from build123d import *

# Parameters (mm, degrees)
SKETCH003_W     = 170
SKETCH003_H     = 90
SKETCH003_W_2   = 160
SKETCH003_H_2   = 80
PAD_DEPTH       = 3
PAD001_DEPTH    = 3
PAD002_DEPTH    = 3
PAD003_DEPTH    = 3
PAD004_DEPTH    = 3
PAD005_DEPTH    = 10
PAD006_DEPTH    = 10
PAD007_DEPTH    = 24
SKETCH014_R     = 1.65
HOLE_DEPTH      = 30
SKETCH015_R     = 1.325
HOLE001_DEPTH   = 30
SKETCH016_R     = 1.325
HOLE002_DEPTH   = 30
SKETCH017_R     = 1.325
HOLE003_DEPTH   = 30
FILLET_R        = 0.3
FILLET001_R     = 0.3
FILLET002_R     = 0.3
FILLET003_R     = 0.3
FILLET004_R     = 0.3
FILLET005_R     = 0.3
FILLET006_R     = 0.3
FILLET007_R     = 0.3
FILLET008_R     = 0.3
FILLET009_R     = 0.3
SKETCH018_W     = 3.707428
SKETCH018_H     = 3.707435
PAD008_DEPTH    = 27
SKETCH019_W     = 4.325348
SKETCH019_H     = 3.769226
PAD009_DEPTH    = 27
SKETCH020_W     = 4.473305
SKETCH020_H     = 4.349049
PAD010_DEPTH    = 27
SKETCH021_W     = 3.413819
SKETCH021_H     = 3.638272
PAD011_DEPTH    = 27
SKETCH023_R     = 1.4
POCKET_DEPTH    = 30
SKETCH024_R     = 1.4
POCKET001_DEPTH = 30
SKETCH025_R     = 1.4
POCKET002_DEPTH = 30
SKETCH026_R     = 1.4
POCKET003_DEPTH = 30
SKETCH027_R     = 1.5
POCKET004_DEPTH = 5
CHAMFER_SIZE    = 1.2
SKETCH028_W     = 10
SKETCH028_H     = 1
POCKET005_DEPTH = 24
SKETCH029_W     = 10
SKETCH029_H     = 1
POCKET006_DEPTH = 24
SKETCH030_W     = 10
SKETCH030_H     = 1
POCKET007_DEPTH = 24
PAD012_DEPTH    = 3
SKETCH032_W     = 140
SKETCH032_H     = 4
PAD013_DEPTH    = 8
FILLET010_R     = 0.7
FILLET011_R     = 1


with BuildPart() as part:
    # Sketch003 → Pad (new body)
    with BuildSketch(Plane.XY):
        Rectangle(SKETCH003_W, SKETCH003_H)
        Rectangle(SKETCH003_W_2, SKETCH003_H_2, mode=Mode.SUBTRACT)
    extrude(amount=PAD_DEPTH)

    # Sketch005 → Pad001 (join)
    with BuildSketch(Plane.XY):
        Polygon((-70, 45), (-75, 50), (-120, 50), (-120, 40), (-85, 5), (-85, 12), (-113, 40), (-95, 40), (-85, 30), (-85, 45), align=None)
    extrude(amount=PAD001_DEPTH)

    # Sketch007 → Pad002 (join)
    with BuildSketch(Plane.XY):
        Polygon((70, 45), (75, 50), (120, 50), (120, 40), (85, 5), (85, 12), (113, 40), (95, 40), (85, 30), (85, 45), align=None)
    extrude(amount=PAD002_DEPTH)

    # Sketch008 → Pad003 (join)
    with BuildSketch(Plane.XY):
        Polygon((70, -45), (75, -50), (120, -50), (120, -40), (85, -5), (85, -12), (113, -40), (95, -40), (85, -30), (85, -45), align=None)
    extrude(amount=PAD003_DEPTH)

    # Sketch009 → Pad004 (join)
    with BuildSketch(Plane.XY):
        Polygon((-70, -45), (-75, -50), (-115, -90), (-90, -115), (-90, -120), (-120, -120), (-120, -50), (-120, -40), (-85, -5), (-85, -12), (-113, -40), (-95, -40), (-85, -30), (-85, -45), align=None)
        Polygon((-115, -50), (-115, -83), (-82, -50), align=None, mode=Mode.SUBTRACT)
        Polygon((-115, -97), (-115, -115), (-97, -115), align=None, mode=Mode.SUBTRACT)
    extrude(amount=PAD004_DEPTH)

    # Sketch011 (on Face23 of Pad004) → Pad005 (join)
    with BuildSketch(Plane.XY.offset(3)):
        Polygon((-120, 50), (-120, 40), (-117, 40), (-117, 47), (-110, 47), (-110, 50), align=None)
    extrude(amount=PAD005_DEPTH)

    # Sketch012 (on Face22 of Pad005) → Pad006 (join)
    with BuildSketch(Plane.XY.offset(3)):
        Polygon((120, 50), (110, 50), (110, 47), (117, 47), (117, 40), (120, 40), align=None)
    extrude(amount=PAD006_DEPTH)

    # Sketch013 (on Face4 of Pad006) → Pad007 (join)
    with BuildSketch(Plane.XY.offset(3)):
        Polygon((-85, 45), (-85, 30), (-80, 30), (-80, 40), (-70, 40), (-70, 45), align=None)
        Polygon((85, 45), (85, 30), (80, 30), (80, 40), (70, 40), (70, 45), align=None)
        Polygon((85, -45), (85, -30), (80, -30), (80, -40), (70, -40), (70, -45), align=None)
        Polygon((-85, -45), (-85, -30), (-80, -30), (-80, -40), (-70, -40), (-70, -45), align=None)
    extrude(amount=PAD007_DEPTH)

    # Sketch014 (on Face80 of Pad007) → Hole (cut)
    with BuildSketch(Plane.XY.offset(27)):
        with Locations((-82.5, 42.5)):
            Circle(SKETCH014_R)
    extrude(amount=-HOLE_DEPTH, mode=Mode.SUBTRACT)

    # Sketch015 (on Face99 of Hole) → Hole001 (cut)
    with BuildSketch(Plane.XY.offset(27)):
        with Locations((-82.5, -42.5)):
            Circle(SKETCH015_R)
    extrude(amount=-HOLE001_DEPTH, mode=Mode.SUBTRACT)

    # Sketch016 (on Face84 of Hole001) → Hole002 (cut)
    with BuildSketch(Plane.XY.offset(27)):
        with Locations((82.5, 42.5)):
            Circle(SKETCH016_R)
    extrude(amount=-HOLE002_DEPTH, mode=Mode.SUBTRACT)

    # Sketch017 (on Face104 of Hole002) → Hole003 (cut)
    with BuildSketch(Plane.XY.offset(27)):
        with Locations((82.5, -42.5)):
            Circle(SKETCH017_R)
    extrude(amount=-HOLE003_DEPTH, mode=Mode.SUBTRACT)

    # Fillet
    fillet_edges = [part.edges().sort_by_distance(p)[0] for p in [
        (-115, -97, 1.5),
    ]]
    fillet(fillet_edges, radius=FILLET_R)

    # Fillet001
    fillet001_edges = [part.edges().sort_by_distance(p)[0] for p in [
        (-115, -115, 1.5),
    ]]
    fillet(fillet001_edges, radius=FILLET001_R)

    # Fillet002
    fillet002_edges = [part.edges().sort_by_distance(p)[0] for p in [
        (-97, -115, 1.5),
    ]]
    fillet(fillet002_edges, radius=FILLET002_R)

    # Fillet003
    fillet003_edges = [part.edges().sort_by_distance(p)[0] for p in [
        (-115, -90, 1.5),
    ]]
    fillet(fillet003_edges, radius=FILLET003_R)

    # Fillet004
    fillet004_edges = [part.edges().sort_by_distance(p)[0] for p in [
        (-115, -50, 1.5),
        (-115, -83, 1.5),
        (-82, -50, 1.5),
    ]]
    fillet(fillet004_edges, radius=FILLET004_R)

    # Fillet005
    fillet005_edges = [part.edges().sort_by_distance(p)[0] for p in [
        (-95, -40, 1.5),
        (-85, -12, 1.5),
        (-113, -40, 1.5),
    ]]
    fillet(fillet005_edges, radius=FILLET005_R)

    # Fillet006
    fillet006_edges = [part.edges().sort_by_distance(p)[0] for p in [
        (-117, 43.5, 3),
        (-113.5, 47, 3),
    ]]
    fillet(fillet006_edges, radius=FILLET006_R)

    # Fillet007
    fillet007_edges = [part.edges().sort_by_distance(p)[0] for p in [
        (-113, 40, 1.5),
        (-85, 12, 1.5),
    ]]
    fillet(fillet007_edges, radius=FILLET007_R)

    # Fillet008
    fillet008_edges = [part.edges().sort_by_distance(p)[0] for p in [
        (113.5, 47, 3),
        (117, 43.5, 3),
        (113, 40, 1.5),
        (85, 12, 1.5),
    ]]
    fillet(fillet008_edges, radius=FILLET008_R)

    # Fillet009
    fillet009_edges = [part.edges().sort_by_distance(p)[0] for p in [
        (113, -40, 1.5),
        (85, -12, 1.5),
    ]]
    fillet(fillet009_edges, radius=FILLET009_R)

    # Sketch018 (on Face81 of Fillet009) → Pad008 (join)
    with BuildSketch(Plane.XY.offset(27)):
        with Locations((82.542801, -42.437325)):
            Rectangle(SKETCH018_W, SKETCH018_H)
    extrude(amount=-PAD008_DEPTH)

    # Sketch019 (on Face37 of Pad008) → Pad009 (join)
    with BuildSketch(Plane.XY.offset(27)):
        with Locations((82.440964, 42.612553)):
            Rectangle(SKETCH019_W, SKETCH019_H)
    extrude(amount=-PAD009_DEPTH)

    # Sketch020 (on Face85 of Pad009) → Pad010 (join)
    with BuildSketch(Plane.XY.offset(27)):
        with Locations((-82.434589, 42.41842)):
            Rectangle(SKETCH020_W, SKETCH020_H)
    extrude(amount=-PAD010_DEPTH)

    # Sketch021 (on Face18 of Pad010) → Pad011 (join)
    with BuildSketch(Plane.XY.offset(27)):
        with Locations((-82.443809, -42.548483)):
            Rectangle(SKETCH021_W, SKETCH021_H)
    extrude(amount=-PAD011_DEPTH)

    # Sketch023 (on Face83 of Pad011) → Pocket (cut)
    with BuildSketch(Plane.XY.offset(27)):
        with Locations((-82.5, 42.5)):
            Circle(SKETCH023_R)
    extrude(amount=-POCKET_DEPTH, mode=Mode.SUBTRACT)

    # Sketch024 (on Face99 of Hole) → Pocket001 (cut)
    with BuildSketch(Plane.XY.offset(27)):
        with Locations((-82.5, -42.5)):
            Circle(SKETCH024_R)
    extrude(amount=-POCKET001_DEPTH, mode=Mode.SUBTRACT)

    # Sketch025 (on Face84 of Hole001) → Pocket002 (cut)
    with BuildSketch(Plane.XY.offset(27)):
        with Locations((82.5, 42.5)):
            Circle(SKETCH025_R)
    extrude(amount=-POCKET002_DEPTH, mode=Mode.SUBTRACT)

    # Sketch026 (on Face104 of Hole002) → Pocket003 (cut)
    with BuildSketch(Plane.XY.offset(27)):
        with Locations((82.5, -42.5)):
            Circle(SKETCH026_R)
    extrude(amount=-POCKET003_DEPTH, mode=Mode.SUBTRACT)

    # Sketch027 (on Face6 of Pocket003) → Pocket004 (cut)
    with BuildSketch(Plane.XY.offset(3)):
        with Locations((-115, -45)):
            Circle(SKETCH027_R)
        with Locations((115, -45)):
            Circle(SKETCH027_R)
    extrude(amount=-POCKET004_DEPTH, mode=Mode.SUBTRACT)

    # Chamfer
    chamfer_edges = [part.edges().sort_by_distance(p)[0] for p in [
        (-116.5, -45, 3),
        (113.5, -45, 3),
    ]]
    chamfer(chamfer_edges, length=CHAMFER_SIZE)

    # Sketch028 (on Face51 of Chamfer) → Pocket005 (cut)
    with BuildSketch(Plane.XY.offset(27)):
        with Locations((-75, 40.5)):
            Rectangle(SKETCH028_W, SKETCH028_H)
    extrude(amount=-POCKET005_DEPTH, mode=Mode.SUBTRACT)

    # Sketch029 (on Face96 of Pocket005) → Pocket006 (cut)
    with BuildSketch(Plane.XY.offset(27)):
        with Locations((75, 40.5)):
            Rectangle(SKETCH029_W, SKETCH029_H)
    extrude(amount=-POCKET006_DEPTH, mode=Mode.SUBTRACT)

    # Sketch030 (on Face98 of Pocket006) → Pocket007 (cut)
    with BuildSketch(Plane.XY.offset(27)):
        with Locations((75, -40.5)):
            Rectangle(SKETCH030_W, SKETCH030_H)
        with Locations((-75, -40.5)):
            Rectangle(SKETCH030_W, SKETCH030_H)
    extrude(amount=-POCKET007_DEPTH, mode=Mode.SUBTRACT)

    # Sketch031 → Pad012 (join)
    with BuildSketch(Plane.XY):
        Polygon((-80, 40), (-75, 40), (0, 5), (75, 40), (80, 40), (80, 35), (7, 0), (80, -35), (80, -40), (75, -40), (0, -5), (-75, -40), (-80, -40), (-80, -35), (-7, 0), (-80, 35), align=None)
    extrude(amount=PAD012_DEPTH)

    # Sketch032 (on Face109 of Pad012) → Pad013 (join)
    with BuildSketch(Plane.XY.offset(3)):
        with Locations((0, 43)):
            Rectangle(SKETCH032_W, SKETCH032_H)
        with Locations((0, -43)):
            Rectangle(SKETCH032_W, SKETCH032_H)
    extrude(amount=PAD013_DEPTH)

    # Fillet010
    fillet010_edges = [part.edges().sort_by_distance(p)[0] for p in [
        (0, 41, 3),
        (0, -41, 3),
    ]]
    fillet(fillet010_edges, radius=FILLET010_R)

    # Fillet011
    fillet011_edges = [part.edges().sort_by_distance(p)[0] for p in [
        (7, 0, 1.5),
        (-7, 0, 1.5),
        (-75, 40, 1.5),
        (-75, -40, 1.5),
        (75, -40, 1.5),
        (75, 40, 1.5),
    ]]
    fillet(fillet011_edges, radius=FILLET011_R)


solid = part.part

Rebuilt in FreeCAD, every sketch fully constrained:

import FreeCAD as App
import Part
import Sketcher
from FreeCAD import Vector
Q = App.Units.Quantity


def edges_at(feature, points):
    """Names of the edges that pass closest to the given points."""
    edges = feature.Shape.Edges
    near = lambda p: min(range(len(edges)), key=lambda i: edges[i].distToShape(Part.Vertex(*p))[0])
    return sorted({f"Edge{near(p) + 1}" for p in points})


def add_polygon(sketch, points):
    """Adds a closed chain of lines whose ends are joined by coincident constraints."""
    first, n = sketch.GeometryCount, len(points)
    for a, b in zip(points, points[1:] + points[:1]):
        sketch.addGeometry(Part.LineSegment(App.Vector(*a, 0), App.Vector(*b, 0)), False)
    for i in range(n):
        sketch.addConstraint(Sketcher.Constraint("Coincident", first + i, 2, first + (i + 1) % n, 1))

doc = App.newDocument("Part")
body = doc.addObject("PartDesign::Body", "Body")

sketch1 = doc.addObject("Sketcher::SketchObject", "Sketch")
body.addObject(sketch1)
sketch1.AttachmentSupport = (doc.XY_Plane, [""])
sketch1.MapMode = "FlatFace"
add_polygon(sketch1, [(-85, 45), (-85, -45), (85, -45), (85, 45)])
add_polygon(sketch1, [(80, -40), (-80, -40), (-80, 40), (80, 40)])
sketch1.addConstraint(Sketcher.Constraint("Vertical", 0))
sketch1.addConstraint(Sketcher.Constraint("Horizontal", 1))
sketch1.addConstraint(Sketcher.Constraint("Vertical", 2))
sketch1.addConstraint(Sketcher.Constraint("Horizontal", 3))
sketch1.addConstraint(Sketcher.Constraint("Horizontal", 4))
sketch1.addConstraint(Sketcher.Constraint("Vertical", 5))
sketch1.addConstraint(Sketcher.Constraint("Horizontal", 6))
sketch1.addConstraint(Sketcher.Constraint("Vertical", 7))
sketch1.addConstraint(Sketcher.Constraint("Symmetric", 0, 2, 2, 2, -1, 1))
sketch1.addConstraint(Sketcher.Constraint("Symmetric", 4, 2, 6, 2, -1, 1))
sketch1.addConstraint(Sketcher.Constraint("DistanceX", 1, 1, 1, 2, Q("170 mm")))
sketch1.addConstraint(Sketcher.Constraint("DistanceX", 4, 2, 4, 1, Q("160 mm")))
sketch1.addConstraint(Sketcher.Constraint("DistanceY", 0, 2, 0, 1, Q("90 mm")))
sketch1.addConstraint(Sketcher.Constraint("DistanceY", 5, 1, 5, 2, Q("80 mm")))
pad1 = doc.addObject("PartDesign::Pad", "Pad")
body.addObject(pad1)
pad1.Profile = sketch1
pad1.Length = 3

sketch2 = doc.addObject("Sketcher::SketchObject", "Sketch001")
body.addObject(sketch2)
sketch2.AttachmentSupport = (doc.XY_Plane, [""])
sketch2.MapMode = "FlatFace"
add_polygon(sketch2, [(-70, 45), (-75, 50), (-120, 50), (-120, 40), (-85, 5), (-85, 12), (-113, 40), (-95, 40), (-85, 30), (-85, 45)])
sketch2.addConstraint(Sketcher.Constraint("Horizontal", 1))
sketch2.addConstraint(Sketcher.Constraint("Vertical", 2))
sketch2.addConstraint(Sketcher.Constraint("Vertical", 4))
sketch2.addConstraint(Sketcher.Constraint("Horizontal", 6))
sketch2.addConstraint(Sketcher.Constraint("Vertical", 8))
sketch2.addConstraint(Sketcher.Constraint("Horizontal", 9))
sketch2.addConstraint(Sketcher.Constraint("Parallel", 0, 3))
sketch2.addConstraint(Sketcher.Constraint("Parallel", 3, 5))
sketch2.addConstraint(Sketcher.Constraint("Parallel", 5, 7))
sketch2.addConstraint(Sketcher.Constraint("Horizontal", 2, 2, 5, 2))
sketch2.addConstraint(Sketcher.Constraint("Vertical", 4, 2, 7, 2))
sketch2.addConstraint(Sketcher.Constraint("Equal", 9, 8))
sketch2.addConstraint(Sketcher.Constraint("DistanceX", 1, 2, 1, 1, Q("45 mm")))
sketch2.addConstraint(Sketcher.Constraint("DistanceX", 6, 1, 6, 2, Q("18 mm")))
sketch2.addConstraint(Sketcher.Constraint("DistanceX", 9, 1, 9, 2, Q("15 mm")))
sketch2.addConstraint(Sketcher.Constraint("DistanceY", 2, 2, 2, 1, Q("10 mm")))
sketch2.addConstraint(Sketcher.Constraint("DistanceY", 4, 1, 4, 2, Q("7 mm")))
sketch2.addConstraint(Sketcher.Constraint("DistanceX", 0, 2, -1, 1, Q("75 mm")))
sketch2.addConstraint(Sketcher.Constraint("DistanceY", -1, 1, 0, 2, Q("50 mm")))
sketch2.addConstraint(Sketcher.Constraint("DistanceX", 3, 2, -1, 1, Q("85 mm")))
pad2 = doc.addObject("PartDesign::Pad", "Pad001")
body.addObject(pad2)
pad2.Profile = sketch2
pad2.Length = 3

sketch3 = doc.addObject("Sketcher::SketchObject", "Sketch002")
body.addObject(sketch3)
sketch3.AttachmentSupport = (doc.XY_Plane, [""])
sketch3.MapMode = "FlatFace"
add_polygon(sketch3, [(75, 50), (70, 45), (85, 45), (85, 30), (95, 40), (113, 40), (85, 12), (85, 5), (120, 40), (120, 50)])
sketch3.addConstraint(Sketcher.Constraint("Horizontal", 1))
sketch3.addConstraint(Sketcher.Constraint("Vertical", 2))
sketch3.addConstraint(Sketcher.Constraint("Horizontal", 4))
sketch3.addConstraint(Sketcher.Constraint("Vertical", 6))
sketch3.addConstraint(Sketcher.Constraint("Vertical", 8))
sketch3.addConstraint(Sketcher.Constraint("Horizontal", 9))
sketch3.addConstraint(Sketcher.Constraint("Parallel", 0, 3))
sketch3.addConstraint(Sketcher.Constraint("Parallel", 3, 5))
sketch3.addConstraint(Sketcher.Constraint("Parallel", 5, 7))
sketch3.addConstraint(Sketcher.Constraint("Horizontal", 4, 2, 7, 2))
sketch3.addConstraint(Sketcher.Constraint("Vertical", 2, 2, 5, 2))
sketch3.addConstraint(Sketcher.Constraint("Equal", 1, 2))
sketch3.addConstraint(Sketcher.Constraint("DistanceX", 1, 1, 1, 2, Q("15 mm")))
sketch3.addConstraint(Sketcher.Constraint("DistanceX", 4, 1, 4, 2, Q("18 mm")))
sketch3.addConstraint(Sketcher.Constraint("DistanceX", 9, 2, 9, 1, Q("45 mm")))
sketch3.addConstraint(Sketcher.Constraint("DistanceY", 6, 2, 6, 1, Q("7 mm")))
sketch3.addConstraint(Sketcher.Constraint("DistanceY", 8, 1, 8, 2, Q("10 mm")))
sketch3.addConstraint(Sketcher.Constraint("DistanceX", -1, 1, 0, 2, Q("70 mm")))
sketch3.addConstraint(Sketcher.Constraint("DistanceY", -1, 1, 0, 2, Q("45 mm")))
sketch3.addConstraint(Sketcher.Constraint("DistanceX", -1, 1, 3, 2, Q("95 mm")))
pad3 = doc.addObject("PartDesign::Pad", "Pad002")
body.addObject(pad3)
pad3.Profile = sketch3
pad3.Length = 3

sketch4 = doc.addObject("Sketcher::SketchObject", "Sketch003")
body.addObject(sketch4)
sketch4.AttachmentSupport = (doc.XY_Plane, [""])
sketch4.MapMode = "FlatFace"
add_polygon(sketch4, [(70, -45), (75, -50), (120, -50), (120, -40), (85, -5), (85, -12), (113, -40), (95, -40), (85, -30), (85, -45)])
sketch4.addConstraint(Sketcher.Constraint("Horizontal", 1))
sketch4.addConstraint(Sketcher.Constraint("Vertical", 2))
sketch4.addConstraint(Sketcher.Constraint("Vertical", 4))
sketch4.addConstraint(Sketcher.Constraint("Horizontal", 6))
sketch4.addConstraint(Sketcher.Constraint("Vertical", 8))
sketch4.addConstraint(Sketcher.Constraint("Horizontal", 9))
sketch4.addConstraint(Sketcher.Constraint("Parallel", 0, 3))
sketch4.addConstraint(Sketcher.Constraint("Parallel", 3, 5))
sketch4.addConstraint(Sketcher.Constraint("Parallel", 5, 7))
sketch4.addConstraint(Sketcher.Constraint("Horizontal", 2, 2, 5, 2))
sketch4.addConstraint(Sketcher.Constraint("Vertical", 4, 2, 7, 2))
sketch4.addConstraint(Sketcher.Constraint("Equal", 9, 8))
sketch4.addConstraint(Sketcher.Constraint("DistanceX", 1, 1, 1, 2, Q("45 mm")))
sketch4.addConstraint(Sketcher.Constraint("DistanceX", 6, 2, 6, 1, Q("18 mm")))
sketch4.addConstraint(Sketcher.Constraint("DistanceX", 9, 2, 9, 1, Q("15 mm")))
sketch4.addConstraint(Sketcher.Constraint("DistanceY", 2, 1, 2, 2, Q("10 mm")))
sketch4.addConstraint(Sketcher.Constraint("DistanceY", 4, 2, 4, 1, Q("7 mm")))
sketch4.addConstraint(Sketcher.Constraint("DistanceX", -1, 1, 0, 2, Q("75 mm")))
sketch4.addConstraint(Sketcher.Constraint("DistanceY", 0, 2, -1, 1, Q("50 mm")))
sketch4.addConstraint(Sketcher.Constraint("DistanceX", -1, 1, 3, 2, Q("85 mm")))
pad4 = doc.addObject("PartDesign::Pad", "Pad003")
body.addObject(pad4)
pad4.Profile = sketch4
pad4.Length = 3

sketch5 = doc.addObject("Sketcher::SketchObject", "Sketch004")
body.addObject(sketch5)
sketch5.AttachmentSupport = (doc.XY_Plane, [""])
sketch5.MapMode = "FlatFace"
add_polygon(sketch5, [(-115, -90), (-70, -45), (-85, -45), (-85, -30), (-95, -40), (-113, -40), (-85, -12), (-85, -5), (-120, -40), (-120, -120), (-90, -120), (-90, -115)])
add_polygon(sketch5, [(-115, -97), (-97, -115), (-115, -115)])
add_polygon(sketch5, [(-115, -50), (-82, -50), (-115, -83)])
sketch5.addConstraint(Sketcher.Constraint("Horizontal", 1))
sketch5.addConstraint(Sketcher.Constraint("Vertical", 2))
sketch5.addConstraint(Sketcher.Constraint("Horizontal", 4))
sketch5.addConstraint(Sketcher.Constraint("Vertical", 6))
sketch5.addConstraint(Sketcher.Constraint("Vertical", 8))
sketch5.addConstraint(Sketcher.Constraint("Horizontal", 9))
sketch5.addConstraint(Sketcher.Constraint("Vertical", 10))
sketch5.addConstraint(Sketcher.Constraint("Horizontal", 13))
sketch5.addConstraint(Sketcher.Constraint("Vertical", 14))
sketch5.addConstraint(Sketcher.Constraint("Horizontal", 15))
sketch5.addConstraint(Sketcher.Constraint("Vertical", 17))
sketch5.addConstraint(Sketcher.Constraint("Parallel", 0, 3))
sketch5.addConstraint(Sketcher.Constraint("Parallel", 3, 5))
sketch5.addConstraint(Sketcher.Constraint("Parallel", 5, 7))
sketch5.addConstraint(Sketcher.Constraint("Perpendicular", 7, 11))
sketch5.addConstraint(Sketcher.Constraint("Parallel", 11, 12))
sketch5.addConstraint(Sketcher.Constraint("Perpendicular", 12, 16))
sketch5.addConstraint(Sketcher.Constraint("Horizontal", 4, 2, 7, 2))
sketch5.addConstraint(Sketcher.Constraint("Horizontal", 10, 2, 12, 2))
sketch5.addConstraint(Sketcher.Constraint("Vertical", 2, 2, 5, 2))
sketch5.addConstraint(Sketcher.Constraint("Vertical", 11, 2, 13, 2))
sketch5.addConstraint(Sketcher.Constraint("Vertical", 14, 2, 16, 2))
sketch5.addConstraint(Sketcher.Constraint("Equal", 4, 13))
sketch5.addConstraint(Sketcher.Constraint("Equal", 1, 2))
sketch5.addConstraint(Sketcher.Constraint("Equal", 13, 14))
sketch5.addConstraint(Sketcher.Constraint("DistanceX", 1, 2, 1, 1, Q("15 mm")))
sketch5.addConstraint(Sketcher.Constraint("DistanceX", 4, 2, 4, 1, Q("18 mm")))
sketch5.addConstraint(Sketcher.Constraint("DistanceX", 9, 1, 9, 2, Q("30 mm")))
sketch5.addConstraint(Sketcher.Constraint("DistanceX", 15, 1, 15, 2, Q("33 mm")))
sketch5.addConstraint(Sketcher.Constraint("DistanceY", 6, 1, 6, 2, Q("7 mm")))
sketch5.addConstraint(Sketcher.Constraint("DistanceY", 8, 2, 8, 1, Q("80 mm")))
sketch5.addConstraint(Sketcher.Constraint("DistanceY", 10, 1, 10, 2, Q("5 mm")))
sketch5.addConstraint(Sketcher.Constraint("DistanceX", 0, 2, -1, 1, Q("70 mm")))
sketch5.addConstraint(Sketcher.Constraint("DistanceY", 0, 2, -1, 1, Q("45 mm")))
sketch5.addConstraint(Sketcher.Constraint("DistanceX", 3, 2, -1, 1, Q("95 mm")))
sketch5.addConstraint(Sketcher.Constraint("DistanceY", 15, 2, -1, 1, Q("50 mm")))
pad5 = doc.addObject("PartDesign::Pad", "Pad004")
body.addObject(pad5)
pad5.Profile = sketch5
pad5.Length = 3

sketch6 = doc.addObject("Sketcher::SketchObject", "Sketch005")
body.addObject(sketch6)
sketch6.AttachmentSupport = (doc.XY_Plane, [""])
sketch6.MapMode = "FlatFace"
sketch6.AttachmentOffset = App.Placement(Vector(0, 0, 3), App.Rotation())
add_polygon(sketch6, [(-120, 50), (-120, 40), (-117, 40), (-117, 47), (-110, 47), (-110, 50)])
sketch6.addConstraint(Sketcher.Constraint("Vertical", 0))
sketch6.addConstraint(Sketcher.Constraint("Horizontal", 1))
sketch6.addConstraint(Sketcher.Constraint("Vertical", 2))
sketch6.addConstraint(Sketcher.Constraint("Horizontal", 3))
sketch6.addConstraint(Sketcher.Constraint("Vertical", 4))
sketch6.addConstraint(Sketcher.Constraint("Horizontal", 5))
sketch6.addConstraint(Sketcher.Constraint("Equal", 5, 0))
sketch6.addConstraint(Sketcher.Constraint("Equal", 3, 2))
sketch6.addConstraint(Sketcher.Constraint("DistanceX", 1, 1, 1, 2, Q("3 mm")))
sketch6.addConstraint(Sketcher.Constraint("DistanceX", 3, 1, 3, 2, Q("7 mm")))
sketch6.addConstraint(Sketcher.Constraint("DistanceX", 0, 2, -1, 1, Q("120 mm")))
sketch6.addConstraint(Sketcher.Constraint("DistanceY", -1, 1, 0, 2, Q("40 mm")))
pad6 = doc.addObject("PartDesign::Pad", "Pad005")
body.addObject(pad6)
pad6.Profile = sketch6
pad6.Length = 10

sketch7 = doc.addObject("Sketcher::SketchObject", "Sketch006")
body.addObject(sketch7)
sketch7.AttachmentSupport = (doc.XY_Plane, [""])
sketch7.MapMode = "FlatFace"
sketch7.AttachmentOffset = App.Placement(Vector(0, 0, 3), App.Rotation())
add_polygon(sketch7, [(120, 50), (110, 50), (110, 47), (117, 47), (117, 40), (120, 40)])
sketch7.addConstraint(Sketcher.Constraint("Horizontal", 0))
sketch7.addConstraint(Sketcher.Constraint("Vertical", 1))
sketch7.addConstraint(Sketcher.Constraint("Horizontal", 2))
sketch7.addConstraint(Sketcher.Constraint("Vertical", 3))
sketch7.addConstraint(Sketcher.Constraint("Horizontal", 4))
sketch7.addConstraint(Sketcher.Constraint("Vertical", 5))
sketch7.addConstraint(Sketcher.Constraint("Equal", 4, 1))
sketch7.addConstraint(Sketcher.Constraint("Equal", 2, 3))
sketch7.addConstraint(Sketcher.Constraint("DistanceX", 0, 2, 0, 1, Q("10 mm")))
sketch7.addConstraint(Sketcher.Constraint("DistanceX", 2, 1, 2, 2, Q("7 mm")))
sketch7.addConstraint(Sketcher.Constraint("DistanceX", -1, 1, 0, 2, Q("110 mm")))
sketch7.addConstraint(Sketcher.Constraint("DistanceY", -1, 1, 0, 2, Q("50 mm")))
pad7 = doc.addObject("PartDesign::Pad", "Pad006")
body.addObject(pad7)
pad7.Profile = sketch7
pad7.Length = 10

sketch8 = doc.addObject("Sketcher::SketchObject", "Sketch007")
body.addObject(sketch8)
sketch8.AttachmentSupport = (doc.XY_Plane, [""])
sketch8.MapMode = "FlatFace"
sketch8.AttachmentOffset = App.Placement(Vector(0, 0, 3), App.Rotation())
add_polygon(sketch8, [(-85, 45), (-85, 30), (-80, 30), (-80, 40), (-70, 40), (-70, 45)])
add_polygon(sketch8, [(85, 30), (85, 45), (70, 45), (70, 40), (80, 40), (80, 30)])
add_polygon(sketch8, [(85, -45), (85, -30), (80, -30), (80, -40), (70, -40), (70, -45)])
add_polygon(sketch8, [(-85, -30), (-85, -45), (-70, -45), (-70, -40), (-80, -40), (-80, -30)])
sketch8.addConstraint(Sketcher.Constraint("Vertical", 0))
sketch8.addConstraint(Sketcher.Constraint("Horizontal", 1))
sketch8.addConstraint(Sketcher.Constraint("Vertical", 2))
sketch8.addConstraint(Sketcher.Constraint("Horizontal", 3))
sketch8.addConstraint(Sketcher.Constraint("Vertical", 4))
sketch8.addConstraint(Sketcher.Constraint("Horizontal", 5))
sketch8.addConstraint(Sketcher.Constraint("Vertical", 6))
sketch8.addConstraint(Sketcher.Constraint("Horizontal", 7))
sketch8.addConstraint(Sketcher.Constraint("Vertical", 8))
sketch8.addConstraint(Sketcher.Constraint("Horizontal", 9))
sketch8.addConstraint(Sketcher.Constraint("Vertical", 10))
sketch8.addConstraint(Sketcher.Constraint("Horizontal", 11))
sketch8.addConstraint(Sketcher.Constraint("Vertical", 12))
sketch8.addConstraint(Sketcher.Constraint("Horizontal", 13))
sketch8.addConstraint(Sketcher.Constraint("Vertical", 14))
sketch8.addConstraint(Sketcher.Constraint("Horizontal", 15))
sketch8.addConstraint(Sketcher.Constraint("Vertical", 16))
sketch8.addConstraint(Sketcher.Constraint("Horizontal", 17))
sketch8.addConstraint(Sketcher.Constraint("Vertical", 18))
sketch8.addConstraint(Sketcher.Constraint("Horizontal", 19))
sketch8.addConstraint(Sketcher.Constraint("Vertical", 20))
sketch8.addConstraint(Sketcher.Constraint("Horizontal", 21))
sketch8.addConstraint(Sketcher.Constraint("Vertical", 22))
sketch8.addConstraint(Sketcher.Constraint("Horizontal", 23))
sketch8.addConstraint(Sketcher.Constraint("Symmetric", 0, 2, 12, 2, -1, 1))
sketch8.addConstraint(Sketcher.Constraint("Symmetric", 2, 2, 14, 2, -1, 1))
sketch8.addConstraint(Sketcher.Constraint("Symmetric", 4, 2, 16, 2, -1, 1))
sketch8.addConstraint(Sketcher.Constraint("Symmetric", 6, 2, 18, 2, -1, 1))
sketch8.addConstraint(Sketcher.Constraint("Symmetric", 8, 2, 20, 2, -1, 1))
sketch8.addConstraint(Sketcher.Constraint("Symmetric", 10, 2, 22, 2, -1, 1))
sketch8.addConstraint(Sketcher.Constraint("Symmetric", 5, 2, 6, 2, -2))
sketch8.addConstraint(Sketcher.Constraint("Symmetric", 3, 2, 8, 2, -2))
sketch8.addConstraint(Sketcher.Constraint("Symmetric", 1, 2, 10, 2, -2))
sketch8.addConstraint(Sketcher.Constraint("Equal", 19, 0))
sketch8.addConstraint(Sketcher.Constraint("Equal", 21, 2))
sketch8.addConstraint(Sketcher.Constraint("DistanceX", 1, 1, 1, 2, Q("5 mm")))
sketch8.addConstraint(Sketcher.Constraint("DistanceX", 3, 1, 3, 2, Q("10 mm")))
sketch8.addConstraint(Sketcher.Constraint("DistanceX", 0, 2, -1, 1, Q("85 mm")))
sketch8.addConstraint(Sketcher.Constraint("DistanceY", -1, 1, 0, 2, Q("30 mm")))
pad8 = doc.addObject("PartDesign::Pad", "Pad007")
body.addObject(pad8)
pad8.Profile = sketch8
pad8.Length = 24

sketch9 = doc.addObject("Sketcher::SketchObject", "Sketch008")
body.addObject(sketch9)
sketch9.AttachmentSupport = (doc.XY_Plane, [""])
sketch9.MapMode = "FlatFace"
sketch9.AttachmentOffset = App.Placement(Vector(0, 0, 27), App.Rotation())
sketch9.addGeometry(Part.Circle(Vector(-82.5, 42.5, 0), Vector(0, 0, 1), 1.6), False)
sketch9.addConstraint(Sketcher.Constraint("Diameter", 0, Q("3.3 mm")))
sketch9.addConstraint(Sketcher.Constraint("DistanceX", 0, 3, -1, 1, Q("82.5 mm")))
sketch9.addConstraint(Sketcher.Constraint("DistanceY", -1, 1, 0, 3, Q("42.5 mm")))
pocket1 = doc.addObject("PartDesign::Pocket", "Pocket")
body.addObject(pocket1)
pocket1.Profile = sketch9
pocket1.Length = 30

sketch10 = doc.addObject("Sketcher::SketchObject", "Sketch009")
body.addObject(sketch10)
sketch10.AttachmentSupport = (doc.XY_Plane, [""])
sketch10.MapMode = "FlatFace"
sketch10.AttachmentOffset = App.Placement(Vector(0, 0, 27), App.Rotation())
sketch10.addGeometry(Part.Circle(Vector(-82.5, -42.5, 0), Vector(0, 0, 1), 1.3), False)
sketch10.addConstraint(Sketcher.Constraint("Diameter", 0, Q("2.65 mm")))
sketch10.addConstraint(Sketcher.Constraint("DistanceX", 0, 3, -1, 1, Q("82.5 mm")))
sketch10.addConstraint(Sketcher.Constraint("DistanceY", 0, 3, -1, 1, Q("42.5 mm")))
pocket2 = doc.addObject("PartDesign::Pocket", "Pocket001")
body.addObject(pocket2)
pocket2.Profile = sketch10
pocket2.Length = 30

sketch11 = doc.addObject("Sketcher::SketchObject", "Sketch010")
body.addObject(sketch11)
sketch11.AttachmentSupport = (doc.XY_Plane, [""])
sketch11.MapMode = "FlatFace"
sketch11.AttachmentOffset = App.Placement(Vector(0, 0, 27), App.Rotation())
sketch11.addGeometry(Part.Circle(Vector(82.5, 42.5, 0), Vector(0, 0, 1), 1.3), False)
sketch11.addConstraint(Sketcher.Constraint("Diameter", 0, Q("2.65 mm")))
sketch11.addConstraint(Sketcher.Constraint("DistanceX", -1, 1, 0, 3, Q("82.5 mm")))
sketch11.addConstraint(Sketcher.Constraint("DistanceY", -1, 1, 0, 3, Q("42.5 mm")))
pocket3 = doc.addObject("PartDesign::Pocket", "Pocket002")
body.addObject(pocket3)
pocket3.Profile = sketch11
pocket3.Length = 30

sketch12 = doc.addObject("Sketcher::SketchObject", "Sketch011")
body.addObject(sketch12)
sketch12.AttachmentSupport = (doc.XY_Plane, [""])
sketch12.MapMode = "FlatFace"
sketch12.AttachmentOffset = App.Placement(Vector(0, 0, 27), App.Rotation())
sketch12.addGeometry(Part.Circle(Vector(82.5, -42.5, 0), Vector(0, 0, 1), 1.3), False)
sketch12.addConstraint(Sketcher.Constraint("Diameter", 0, Q("2.65 mm")))
sketch12.addConstraint(Sketcher.Constraint("DistanceX", -1, 1, 0, 3, Q("82.5 mm")))
sketch12.addConstraint(Sketcher.Constraint("DistanceY", 0, 3, -1, 1, Q("42.5 mm")))
pocket4 = doc.addObject("PartDesign::Pocket", "Pocket003")
body.addObject(pocket4)
pocket4.Profile = sketch12
pocket4.Length = 30
doc.recompute()

fillet = doc.addObject("PartDesign::Fillet", "Fillet")
body.addObject(fillet)
fillet.Base = (pocket4, edges_at(pocket4, [(-115, -97, 1.5)]))
fillet.Radius = 0.3
doc.recompute()

fillet2 = doc.addObject("PartDesign::Fillet", "Fillet001")
body.addObject(fillet2)
fillet2.Base = (fillet, edges_at(fillet, [(-115, -115, 1.5)]))
fillet2.Radius = 0.3
doc.recompute()

fillet3 = doc.addObject("PartDesign::Fillet", "Fillet002")
body.addObject(fillet3)
fillet3.Base = (fillet2, edges_at(fillet2, [(-97, -115, 1.5)]))
fillet3.Radius = 0.3
doc.recompute()

fillet4 = doc.addObject("PartDesign::Fillet", "Fillet003")
body.addObject(fillet4)
fillet4.Base = (fillet3, edges_at(fillet3, [(-115, -90, 1.5)]))
fillet4.Radius = 0.3
doc.recompute()

fillet5 = doc.addObject("PartDesign::Fillet", "Fillet004")
body.addObject(fillet5)
fillet5.Base = (fillet4, edges_at(fillet4, [(-115, -50, 1.5), (-115, -83, 1.5), (-82, -50, 1.5)]))
fillet5.Radius = 0.3
doc.recompute()

fillet6 = doc.addObject("PartDesign::Fillet", "Fillet005")
body.addObject(fillet6)
fillet6.Base = (fillet5, edges_at(fillet5, [(-95, -40, 1.5), (-85, -12, 1.5), (-113, -40, 1.5)]))
fillet6.Radius = 0.3
doc.recompute()

fillet7 = doc.addObject("PartDesign::Fillet", "Fillet006")
body.addObject(fillet7)
fillet7.Base = (fillet6, edges_at(fillet6, [(-117, 43.5, 3), (-113.5, 47, 3)]))
fillet7.Radius = 0.3
doc.recompute()

fillet8 = doc.addObject("PartDesign::Fillet", "Fillet007")
body.addObject(fillet8)
fillet8.Base = (fillet7, edges_at(fillet7, [(-113, 40, 1.5), (-85, 12, 1.5)]))
fillet8.Radius = 0.3
doc.recompute()

fillet9 = doc.addObject("PartDesign::Fillet", "Fillet008")
body.addObject(fillet9)
fillet9.Base = (fillet8, edges_at(fillet8, [
    (113.5, 47, 3),
    (117, 43.5, 3),
    (113, 40, 1.5),
    (85, 12, 1.5),
]))
fillet9.Radius = 0.3
doc.recompute()

fillet10 = doc.addObject("PartDesign::Fillet", "Fillet009")
body.addObject(fillet10)
fillet10.Base = (fillet9, edges_at(fillet9, [(113, -40, 1.5), (85, -12, 1.5)]))
fillet10.Radius = 0.3

sketch13 = doc.addObject("Sketcher::SketchObject", "Sketch012")
body.addObject(sketch13)
sketch13.AttachmentSupport = (doc.XY_Plane, [""])
sketch13.MapMode = "FlatFace"
sketch13.AttachmentOffset = App.Placement(Vector(0, 0, 27), App.Rotation())
add_polygon(sketch13, [(80.7, -40.6), (80.7, -44.3), (84.4, -44.3), (84.4, -40.6)])
sketch13.addConstraint(Sketcher.Constraint("Vertical", 0))
sketch13.addConstraint(Sketcher.Constraint("Horizontal", 1))
sketch13.addConstraint(Sketcher.Constraint("Vertical", 2))
sketch13.addConstraint(Sketcher.Constraint("Horizontal", 3))
sketch13.addConstraint(Sketcher.Constraint("DistanceX", 1, 1, 1, 2, Q("3.707428 mm")))
sketch13.addConstraint(Sketcher.Constraint("DistanceY", 0, 2, 0, 1, Q("3.707435 mm")))
sketch13.addConstraint(Sketcher.Constraint("DistanceX", -1, 1, 0, 2, Q("80.689087 mm")))
sketch13.addConstraint(Sketcher.Constraint("DistanceY", 0, 2, -1, 1, Q("44.291043 mm")))
pad9 = doc.addObject("PartDesign::Pad", "Pad008")
body.addObject(pad9)
pad9.Profile = sketch13
pad9.Length = 27
pad9.Reversed = True

sketch14 = doc.addObject("Sketcher::SketchObject", "Sketch013")
body.addObject(sketch14)
sketch14.AttachmentSupport = (doc.XY_Plane, [""])
sketch14.MapMode = "FlatFace"
sketch14.AttachmentOffset = App.Placement(Vector(0, 0, 27), App.Rotation())
add_polygon(sketch14, [(80.3, 44.5), (80.3, 40.7), (84.6, 40.7), (84.6, 44.5)])
sketch14.addConstraint(Sketcher.Constraint("Vertical", 0))
sketch14.addConstraint(Sketcher.Constraint("Horizontal", 1))
sketch14.addConstraint(Sketcher.Constraint("Vertical", 2))
sketch14.addConstraint(Sketcher.Constraint("Horizontal", 3))
sketch14.addConstraint(Sketcher.Constraint("DistanceX", 1, 1, 1, 2, Q("4.325348 mm")))
sketch14.addConstraint(Sketcher.Constraint("DistanceY", 0, 2, 0, 1, Q("3.769226 mm")))
sketch14.addConstraint(Sketcher.Constraint("DistanceX", -1, 1, 0, 2, Q("80.27829 mm")))
sketch14.addConstraint(Sketcher.Constraint("DistanceY", -1, 1, 0, 2, Q("40.72794 mm")))
pad10 = doc.addObject("PartDesign::Pad", "Pad009")
body.addObject(pad10)
pad10.Profile = sketch14
pad10.Length = 27
pad10.Reversed = True

sketch15 = doc.addObject("Sketcher::SketchObject", "Sketch014")
body.addObject(sketch15)
sketch15.AttachmentSupport = (doc.XY_Plane, [""])
sketch15.MapMode = "FlatFace"
sketch15.AttachmentOffset = App.Placement(Vector(0, 0, 27), App.Rotation())
add_polygon(sketch15, [(-84.7, 44.6), (-84.7, 40.2), (-80.2, 40.2), (-80.2, 44.6)])
sketch15.addConstraint(Sketcher.Constraint("Vertical", 0))
sketch15.addConstraint(Sketcher.Constraint("Horizontal", 1))
sketch15.addConstraint(Sketcher.Constraint("Vertical", 2))
sketch15.addConstraint(Sketcher.Constraint("Horizontal", 3))
sketch15.addConstraint(Sketcher.Constraint("DistanceY", 0, 2, 0, 1, Q("4.349049 mm")))
sketch15.addConstraint(Sketcher.Constraint("DistanceX", 1, 1, 1, 2, Q("4.473305 mm")))
sketch15.addConstraint(Sketcher.Constraint("DistanceX", 0, 2, -1, 1, Q("84.671241 mm")))
sketch15.addConstraint(Sketcher.Constraint("DistanceY", -1, 1, 0, 2, Q("40.243896 mm")))
pad11 = doc.addObject("PartDesign::Pad", "Pad010")
body.addObject(pad11)
pad11.Profile = sketch15
pad11.Length = 27
pad11.Reversed = True

sketch16 = doc.addObject("Sketcher::SketchObject", "Sketch015")
body.addObject(sketch16)
sketch16.AttachmentSupport = (doc.XY_Plane, [""])
sketch16.MapMode = "FlatFace"
sketch16.AttachmentOffset = App.Placement(Vector(0, 0, 27), App.Rotation())
add_polygon(sketch16, [(-84.2, -40.7), (-84.2, -44.4), (-80.7, -44.4), (-80.7, -40.7)])
sketch16.addConstraint(Sketcher.Constraint("Vertical", 0))
sketch16.addConstraint(Sketcher.Constraint("Horizontal", 1))
sketch16.addConstraint(Sketcher.Constraint("Vertical", 2))
sketch16.addConstraint(Sketcher.Constraint("Horizontal", 3))
sketch16.addConstraint(Sketcher.Constraint("DistanceX", 1, 1, 1, 2, Q("3.413819 mm")))
sketch16.addConstraint(Sketcher.Constraint("DistanceX", 1, 2, -1, 1, Q("80.7369 mm")))
sketch16.addConstraint(Sketcher.Constraint("DistanceY", 0, 2, 0, 1, Q("3.638272 mm")))
sketch16.addConstraint(Sketcher.Constraint("DistanceY", 0, 2, -1, 1, Q("44.367619 mm")))
pad12 = doc.addObject("PartDesign::Pad", "Pad011")
body.addObject(pad12)
pad12.Profile = sketch16
pad12.Length = 27
pad12.Reversed = True

sketch17 = doc.addObject("Sketcher::SketchObject", "Sketch016")
body.addObject(sketch17)
sketch17.AttachmentSupport = (doc.XY_Plane, [""])
sketch17.MapMode = "FlatFace"
sketch17.AttachmentOffset = App.Placement(Vector(0, 0, 27), App.Rotation())
sketch17.addGeometry(Part.Circle(Vector(-82.5, 42.5, 0), Vector(0, 0, 1), 1.4), False)
sketch17.addConstraint(Sketcher.Constraint("Diameter", 0, Q("2.8 mm")))
sketch17.addConstraint(Sketcher.Constraint("DistanceX", 0, 3, -1, 1, Q("82.5 mm")))
sketch17.addConstraint(Sketcher.Constraint("DistanceY", -1, 1, 0, 3, Q("42.5 mm")))
pocket5 = doc.addObject("PartDesign::Pocket", "Pocket004")
body.addObject(pocket5)
pocket5.Profile = sketch17
pocket5.Length = 30

sketch18 = doc.addObject("Sketcher::SketchObject", "Sketch017")
body.addObject(sketch18)
sketch18.AttachmentSupport = (doc.XY_Plane, [""])
sketch18.MapMode = "FlatFace"
sketch18.AttachmentOffset = App.Placement(Vector(0, 0, 27), App.Rotation())
sketch18.addGeometry(Part.Circle(Vector(-82.5, -42.5, 0), Vector(0, 0, 1), 1.4), False)
sketch18.addConstraint(Sketcher.Constraint("Diameter", 0, Q("2.8 mm")))
sketch18.addConstraint(Sketcher.Constraint("DistanceX", 0, 3, -1, 1, Q("82.5 mm")))
sketch18.addConstraint(Sketcher.Constraint("DistanceY", 0, 3, -1, 1, Q("42.5 mm")))
pocket6 = doc.addObject("PartDesign::Pocket", "Pocket005")
body.addObject(pocket6)
pocket6.Profile = sketch18
pocket6.Length = 30

sketch19 = doc.addObject("Sketcher::SketchObject", "Sketch018")
body.addObject(sketch19)
sketch19.AttachmentSupport = (doc.XY_Plane, [""])
sketch19.MapMode = "FlatFace"
sketch19.AttachmentOffset = App.Placement(Vector(0, 0, 27), App.Rotation())
sketch19.addGeometry(Part.Circle(Vector(82.5, 42.5, 0), Vector(0, 0, 1), 1.4), False)
sketch19.addConstraint(Sketcher.Constraint("Diameter", 0, Q("2.8 mm")))
sketch19.addConstraint(Sketcher.Constraint("DistanceX", -1, 1, 0, 3, Q("82.5 mm")))
sketch19.addConstraint(Sketcher.Constraint("DistanceY", -1, 1, 0, 3, Q("42.5 mm")))
pocket7 = doc.addObject("PartDesign::Pocket", "Pocket006")
body.addObject(pocket7)
pocket7.Profile = sketch19
pocket7.Length = 30

sketch20 = doc.addObject("Sketcher::SketchObject", "Sketch019")
body.addObject(sketch20)
sketch20.AttachmentSupport = (doc.XY_Plane, [""])
sketch20.MapMode = "FlatFace"
sketch20.AttachmentOffset = App.Placement(Vector(0, 0, 27), App.Rotation())
sketch20.addGeometry(Part.Circle(Vector(82.5, -42.5, 0), Vector(0, 0, 1), 1.4), False)
sketch20.addConstraint(Sketcher.Constraint("Diameter", 0, Q("2.8 mm")))
sketch20.addConstraint(Sketcher.Constraint("DistanceX", -1, 1, 0, 3, Q("82.5 mm")))
sketch20.addConstraint(Sketcher.Constraint("DistanceY", 0, 3, -1, 1, Q("42.5 mm")))
pocket8 = doc.addObject("PartDesign::Pocket", "Pocket007")
body.addObject(pocket8)
pocket8.Profile = sketch20
pocket8.Length = 30

sketch21 = doc.addObject("Sketcher::SketchObject", "Sketch020")
body.addObject(sketch21)
sketch21.AttachmentSupport = (doc.XY_Plane, [""])
sketch21.MapMode = "FlatFace"
sketch21.AttachmentOffset = App.Placement(Vector(0, 0, 3), App.Rotation())
sketch21.addGeometry(Part.Circle(Vector(-115, -45, 0), Vector(0, 0, 1), 1.5), False)
sketch21.addGeometry(Part.Circle(Vector(115, -45, 0), Vector(0, 0, 1), 1.5), False)
sketch21.addConstraint(Sketcher.Constraint("Equal", 0, 1))
sketch21.addConstraint(Sketcher.Constraint("Symmetric", 0, 3, 1, 3, -2))
sketch21.addConstraint(Sketcher.Constraint("Diameter", 0, Q("3 mm")))
sketch21.addConstraint(Sketcher.Constraint("DistanceX", 0, 3, -1, 1, Q("115 mm")))
sketch21.addConstraint(Sketcher.Constraint("DistanceY", 0, 3, -1, 1, Q("45 mm")))
pocket9 = doc.addObject("PartDesign::Pocket", "Pocket008")
body.addObject(pocket9)
pocket9.Profile = sketch21
pocket9.Length = 5
doc.recompute()

chamfer = doc.addObject("PartDesign::Chamfer", "Chamfer")
body.addObject(chamfer)
chamfer.Base = (pocket9, edges_at(pocket9, [(-116.5, -45, 3), (113.5, -45, 3)]))
chamfer.Size = 1.2

sketch22 = doc.addObject("Sketcher::SketchObject", "Sketch021")
body.addObject(sketch22)
sketch22.AttachmentSupport = (doc.XY_Plane, [""])
sketch22.MapMode = "FlatFace"
sketch22.AttachmentOffset = App.Placement(Vector(0, 0, 27), App.Rotation())
add_polygon(sketch22, [(-80, 41), (-80, 40), (-70, 40), (-70, 41)])
sketch22.addConstraint(Sketcher.Constraint("Vertical", 0))
sketch22.addConstraint(Sketcher.Constraint("Horizontal", 1))
sketch22.addConstraint(Sketcher.Constraint("Vertical", 2))
sketch22.addConstraint(Sketcher.Constraint("Horizontal", 3))
sketch22.addConstraint(Sketcher.Constraint("DistanceX", 1, 1, 1, 2, Q("10 mm")))
sketch22.addConstraint(Sketcher.Constraint("DistanceY", 0, 2, 0, 1, Q("1 mm")))
sketch22.addConstraint(Sketcher.Constraint("DistanceX", 0, 2, -1, 1, Q("80 mm")))
sketch22.addConstraint(Sketcher.Constraint("DistanceY", -1, 1, 0, 2, Q("40 mm")))
pocket10 = doc.addObject("PartDesign::Pocket", "Pocket009")
body.addObject(pocket10)
pocket10.Profile = sketch22
pocket10.Length = 24

sketch23 = doc.addObject("Sketcher::SketchObject", "Sketch022")
body.addObject(sketch23)
sketch23.AttachmentSupport = (doc.XY_Plane, [""])
sketch23.MapMode = "FlatFace"
sketch23.AttachmentOffset = App.Placement(Vector(0, 0, 27), App.Rotation())
add_polygon(sketch23, [(70, 41), (70, 40), (80, 40), (80, 41)])
sketch23.addConstraint(Sketcher.Constraint("Vertical", 0))
sketch23.addConstraint(Sketcher.Constraint("Horizontal", 1))
sketch23.addConstraint(Sketcher.Constraint("Vertical", 2))
sketch23.addConstraint(Sketcher.Constraint("Horizontal", 3))
sketch23.addConstraint(Sketcher.Constraint("DistanceX", 1, 1, 1, 2, Q("10 mm")))
sketch23.addConstraint(Sketcher.Constraint("DistanceY", 0, 2, 0, 1, Q("1 mm")))
sketch23.addConstraint(Sketcher.Constraint("DistanceX", -1, 1, 0, 2, Q("70 mm")))
sketch23.addConstraint(Sketcher.Constraint("DistanceY", -1, 1, 0, 2, Q("40 mm")))
pocket11 = doc.addObject("PartDesign::Pocket", "Pocket010")
body.addObject(pocket11)
pocket11.Profile = sketch23
pocket11.Length = 24

sketch24 = doc.addObject("Sketcher::SketchObject", "Sketch023")
body.addObject(sketch24)
sketch24.AttachmentSupport = (doc.XY_Plane, [""])
sketch24.MapMode = "FlatFace"
sketch24.AttachmentOffset = App.Placement(Vector(0, 0, 27), App.Rotation())
add_polygon(sketch24, [(70, -40), (70, -41), (80, -41), (80, -40)])
add_polygon(sketch24, [(-80, -40), (-80, -41), (-70, -41), (-70, -40)])
sketch24.addConstraint(Sketcher.Constraint("Vertical", 0))
sketch24.addConstraint(Sketcher.Constraint("Horizontal", 1))
sketch24.addConstraint(Sketcher.Constraint("Vertical", 2))
sketch24.addConstraint(Sketcher.Constraint("Horizontal", 3))
sketch24.addConstraint(Sketcher.Constraint("Vertical", 4))
sketch24.addConstraint(Sketcher.Constraint("Horizontal", 5))
sketch24.addConstraint(Sketcher.Constraint("Vertical", 6))
sketch24.addConstraint(Sketcher.Constraint("Horizontal", 7))
sketch24.addConstraint(Sketcher.Constraint("Symmetric", 1, 2, 4, 2, -2))
sketch24.addConstraint(Sketcher.Constraint("Symmetric", 3, 2, 6, 2, -2))
sketch24.addConstraint(Sketcher.Constraint("DistanceX", 1, 1, 1, 2, Q("10 mm")))
sketch24.addConstraint(Sketcher.Constraint("DistanceY", 0, 2, 0, 1, Q("1 mm")))
sketch24.addConstraint(Sketcher.Constraint("DistanceX", -1, 1, 0, 2, Q("70 mm")))
sketch24.addConstraint(Sketcher.Constraint("DistanceY", 0, 2, -1, 1, Q("41 mm")))
pocket12 = doc.addObject("PartDesign::Pocket", "Pocket011")
body.addObject(pocket12)
pocket12.Profile = sketch24
pocket12.Length = 24

sketch25 = doc.addObject("Sketcher::SketchObject", "Sketch024")
body.addObject(sketch25)
sketch25.AttachmentSupport = (doc.XY_Plane, [""])
sketch25.MapMode = "FlatFace"
add_polygon(sketch25, [(-75, 40), (-80, 40), (-80, 35), (-7, 0), (-80, -35), (-80, -40), (-75, -40), (0, -5), (75, -40), (80, -40), (80, -35), (7, 0), (80, 35), (80, 40), (75, 40), (0, 5)])
sketch25.addConstraint(Sketcher.Constraint("Horizontal", 0))
sketch25.addConstraint(Sketcher.Constraint("Vertical", 1))
sketch25.addConstraint(Sketcher.Constraint("Vertical", 4))
sketch25.addConstraint(Sketcher.Constraint("Horizontal", 5))
sketch25.addConstraint(Sketcher.Constraint("Horizontal", 8))
sketch25.addConstraint(Sketcher.Constraint("Vertical", 9))
sketch25.addConstraint(Sketcher.Constraint("Vertical", 12))
sketch25.addConstraint(Sketcher.Constraint("Horizontal", 13))
sketch25.addConstraint(Sketcher.Constraint("Symmetric", 0, 2, 8, 2, -1, 1))
sketch25.addConstraint(Sketcher.Constraint("Symmetric", 2, 2, 10, 2, -1, 1))
sketch25.addConstraint(Sketcher.Constraint("Symmetric", 3, 2, 11, 2, -1, 1))
sketch25.addConstraint(Sketcher.Constraint("Symmetric", 5, 2, 13, 2, -1, 1))
sketch25.addConstraint(Sketcher.Constraint("Symmetric", 6, 2, 14, 2, -1, 1))
sketch25.addConstraint(Sketcher.Constraint("Symmetric", 5, 2, 7, 2, -2))
sketch25.addConstraint(Sketcher.Constraint("Symmetric", 3, 2, 9, 2, -2))
sketch25.addConstraint(Sketcher.Constraint("PointOnObject", 2, 2, -1))
sketch25.addConstraint(Sketcher.Constraint("PointOnObject", 6, 2, -2))
sketch25.addConstraint(Sketcher.Constraint("Parallel", 2, 10))
sketch25.addConstraint(Sketcher.Constraint("Parallel", 7, 15))
sketch25.addConstraint(Sketcher.Constraint("Equal", 13, 1))
sketch25.addConstraint(Sketcher.Constraint("DistanceX", 0, 2, 0, 1, Q("5 mm")))
sketch25.addConstraint(Sketcher.Constraint("DistanceX", 0, 2, -1, 1, Q("80 mm")))
sketch25.addConstraint(Sketcher.Constraint("DistanceY", -1, 1, 0, 2, Q("40 mm")))
sketch25.addConstraint(Sketcher.Constraint("DistanceX", 2, 2, -1, 1, Q("7 mm")))
sketch25.addConstraint(Sketcher.Constraint("DistanceY", 6, 2, -1, 1, Q("5 mm")))
pad13 = doc.addObject("PartDesign::Pad", "Pad012")
body.addObject(pad13)
pad13.Profile = sketch25
pad13.Length = 3

sketch26 = doc.addObject("Sketcher::SketchObject", "Sketch025")
body.addObject(sketch26)
sketch26.AttachmentSupport = (doc.XY_Plane, [""])
sketch26.MapMode = "FlatFace"
sketch26.AttachmentOffset = App.Placement(Vector(0, 0, 3), App.Rotation())
add_polygon(sketch26, [(-70, 45), (-70, 41), (70, 41), (70, 45)])
add_polygon(sketch26, [(-70, -41), (-70, -45), (70, -45), (70, -41)])
sketch26.addConstraint(Sketcher.Constraint("Vertical", 0))
sketch26.addConstraint(Sketcher.Constraint("Horizontal", 1))
sketch26.addConstraint(Sketcher.Constraint("Vertical", 2))
sketch26.addConstraint(Sketcher.Constraint("Horizontal", 3))
sketch26.addConstraint(Sketcher.Constraint("Vertical", 4))
sketch26.addConstraint(Sketcher.Constraint("Horizontal", 5))
sketch26.addConstraint(Sketcher.Constraint("Vertical", 6))
sketch26.addConstraint(Sketcher.Constraint("Horizontal", 7))
sketch26.addConstraint(Sketcher.Constraint("Symmetric", 2, 2, 4, 2, -1, 1))
sketch26.addConstraint(Sketcher.Constraint("Symmetric", 0, 2, 6, 2, -1, 1))
sketch26.addConstraint(Sketcher.Constraint("Vertical", 3, 2, 4, 2))
sketch26.addConstraint(Sketcher.Constraint("DistanceX", 1, 1, 1, 2, Q("140 mm")))
sketch26.addConstraint(Sketcher.Constraint("DistanceY", 0, 2, 0, 1, Q("4 mm")))
sketch26.addConstraint(Sketcher.Constraint("DistanceY", -1, 1, 0, 2, Q("41 mm")))
pad14 = doc.addObject("PartDesign::Pad", "Pad013")
body.addObject(pad14)
pad14.Profile = sketch26
pad14.Length = 8
doc.recompute()

fillet11 = doc.addObject("PartDesign::Fillet", "Fillet010")
body.addObject(fillet11)
fillet11.Base = (pad14, edges_at(pad14, [(0, 41, 3), (0, -41, 3)]))
fillet11.Radius = 0.7
doc.recompute()

fillet12 = doc.addObject("PartDesign::Fillet", "Fillet011")
body.addObject(fillet12)
fillet12.Base = (fillet11, edges_at(fillet11, [
    (7, 0, 1.5),
    (-7, 0, 1.5),
    (-75, 40, 1.5),
    (-75, -40, 1.5),
    (75, -40, 1.5),
    (75, 40, 1.5),
]))
fillet12.Radius = 1

doc.recompute()
